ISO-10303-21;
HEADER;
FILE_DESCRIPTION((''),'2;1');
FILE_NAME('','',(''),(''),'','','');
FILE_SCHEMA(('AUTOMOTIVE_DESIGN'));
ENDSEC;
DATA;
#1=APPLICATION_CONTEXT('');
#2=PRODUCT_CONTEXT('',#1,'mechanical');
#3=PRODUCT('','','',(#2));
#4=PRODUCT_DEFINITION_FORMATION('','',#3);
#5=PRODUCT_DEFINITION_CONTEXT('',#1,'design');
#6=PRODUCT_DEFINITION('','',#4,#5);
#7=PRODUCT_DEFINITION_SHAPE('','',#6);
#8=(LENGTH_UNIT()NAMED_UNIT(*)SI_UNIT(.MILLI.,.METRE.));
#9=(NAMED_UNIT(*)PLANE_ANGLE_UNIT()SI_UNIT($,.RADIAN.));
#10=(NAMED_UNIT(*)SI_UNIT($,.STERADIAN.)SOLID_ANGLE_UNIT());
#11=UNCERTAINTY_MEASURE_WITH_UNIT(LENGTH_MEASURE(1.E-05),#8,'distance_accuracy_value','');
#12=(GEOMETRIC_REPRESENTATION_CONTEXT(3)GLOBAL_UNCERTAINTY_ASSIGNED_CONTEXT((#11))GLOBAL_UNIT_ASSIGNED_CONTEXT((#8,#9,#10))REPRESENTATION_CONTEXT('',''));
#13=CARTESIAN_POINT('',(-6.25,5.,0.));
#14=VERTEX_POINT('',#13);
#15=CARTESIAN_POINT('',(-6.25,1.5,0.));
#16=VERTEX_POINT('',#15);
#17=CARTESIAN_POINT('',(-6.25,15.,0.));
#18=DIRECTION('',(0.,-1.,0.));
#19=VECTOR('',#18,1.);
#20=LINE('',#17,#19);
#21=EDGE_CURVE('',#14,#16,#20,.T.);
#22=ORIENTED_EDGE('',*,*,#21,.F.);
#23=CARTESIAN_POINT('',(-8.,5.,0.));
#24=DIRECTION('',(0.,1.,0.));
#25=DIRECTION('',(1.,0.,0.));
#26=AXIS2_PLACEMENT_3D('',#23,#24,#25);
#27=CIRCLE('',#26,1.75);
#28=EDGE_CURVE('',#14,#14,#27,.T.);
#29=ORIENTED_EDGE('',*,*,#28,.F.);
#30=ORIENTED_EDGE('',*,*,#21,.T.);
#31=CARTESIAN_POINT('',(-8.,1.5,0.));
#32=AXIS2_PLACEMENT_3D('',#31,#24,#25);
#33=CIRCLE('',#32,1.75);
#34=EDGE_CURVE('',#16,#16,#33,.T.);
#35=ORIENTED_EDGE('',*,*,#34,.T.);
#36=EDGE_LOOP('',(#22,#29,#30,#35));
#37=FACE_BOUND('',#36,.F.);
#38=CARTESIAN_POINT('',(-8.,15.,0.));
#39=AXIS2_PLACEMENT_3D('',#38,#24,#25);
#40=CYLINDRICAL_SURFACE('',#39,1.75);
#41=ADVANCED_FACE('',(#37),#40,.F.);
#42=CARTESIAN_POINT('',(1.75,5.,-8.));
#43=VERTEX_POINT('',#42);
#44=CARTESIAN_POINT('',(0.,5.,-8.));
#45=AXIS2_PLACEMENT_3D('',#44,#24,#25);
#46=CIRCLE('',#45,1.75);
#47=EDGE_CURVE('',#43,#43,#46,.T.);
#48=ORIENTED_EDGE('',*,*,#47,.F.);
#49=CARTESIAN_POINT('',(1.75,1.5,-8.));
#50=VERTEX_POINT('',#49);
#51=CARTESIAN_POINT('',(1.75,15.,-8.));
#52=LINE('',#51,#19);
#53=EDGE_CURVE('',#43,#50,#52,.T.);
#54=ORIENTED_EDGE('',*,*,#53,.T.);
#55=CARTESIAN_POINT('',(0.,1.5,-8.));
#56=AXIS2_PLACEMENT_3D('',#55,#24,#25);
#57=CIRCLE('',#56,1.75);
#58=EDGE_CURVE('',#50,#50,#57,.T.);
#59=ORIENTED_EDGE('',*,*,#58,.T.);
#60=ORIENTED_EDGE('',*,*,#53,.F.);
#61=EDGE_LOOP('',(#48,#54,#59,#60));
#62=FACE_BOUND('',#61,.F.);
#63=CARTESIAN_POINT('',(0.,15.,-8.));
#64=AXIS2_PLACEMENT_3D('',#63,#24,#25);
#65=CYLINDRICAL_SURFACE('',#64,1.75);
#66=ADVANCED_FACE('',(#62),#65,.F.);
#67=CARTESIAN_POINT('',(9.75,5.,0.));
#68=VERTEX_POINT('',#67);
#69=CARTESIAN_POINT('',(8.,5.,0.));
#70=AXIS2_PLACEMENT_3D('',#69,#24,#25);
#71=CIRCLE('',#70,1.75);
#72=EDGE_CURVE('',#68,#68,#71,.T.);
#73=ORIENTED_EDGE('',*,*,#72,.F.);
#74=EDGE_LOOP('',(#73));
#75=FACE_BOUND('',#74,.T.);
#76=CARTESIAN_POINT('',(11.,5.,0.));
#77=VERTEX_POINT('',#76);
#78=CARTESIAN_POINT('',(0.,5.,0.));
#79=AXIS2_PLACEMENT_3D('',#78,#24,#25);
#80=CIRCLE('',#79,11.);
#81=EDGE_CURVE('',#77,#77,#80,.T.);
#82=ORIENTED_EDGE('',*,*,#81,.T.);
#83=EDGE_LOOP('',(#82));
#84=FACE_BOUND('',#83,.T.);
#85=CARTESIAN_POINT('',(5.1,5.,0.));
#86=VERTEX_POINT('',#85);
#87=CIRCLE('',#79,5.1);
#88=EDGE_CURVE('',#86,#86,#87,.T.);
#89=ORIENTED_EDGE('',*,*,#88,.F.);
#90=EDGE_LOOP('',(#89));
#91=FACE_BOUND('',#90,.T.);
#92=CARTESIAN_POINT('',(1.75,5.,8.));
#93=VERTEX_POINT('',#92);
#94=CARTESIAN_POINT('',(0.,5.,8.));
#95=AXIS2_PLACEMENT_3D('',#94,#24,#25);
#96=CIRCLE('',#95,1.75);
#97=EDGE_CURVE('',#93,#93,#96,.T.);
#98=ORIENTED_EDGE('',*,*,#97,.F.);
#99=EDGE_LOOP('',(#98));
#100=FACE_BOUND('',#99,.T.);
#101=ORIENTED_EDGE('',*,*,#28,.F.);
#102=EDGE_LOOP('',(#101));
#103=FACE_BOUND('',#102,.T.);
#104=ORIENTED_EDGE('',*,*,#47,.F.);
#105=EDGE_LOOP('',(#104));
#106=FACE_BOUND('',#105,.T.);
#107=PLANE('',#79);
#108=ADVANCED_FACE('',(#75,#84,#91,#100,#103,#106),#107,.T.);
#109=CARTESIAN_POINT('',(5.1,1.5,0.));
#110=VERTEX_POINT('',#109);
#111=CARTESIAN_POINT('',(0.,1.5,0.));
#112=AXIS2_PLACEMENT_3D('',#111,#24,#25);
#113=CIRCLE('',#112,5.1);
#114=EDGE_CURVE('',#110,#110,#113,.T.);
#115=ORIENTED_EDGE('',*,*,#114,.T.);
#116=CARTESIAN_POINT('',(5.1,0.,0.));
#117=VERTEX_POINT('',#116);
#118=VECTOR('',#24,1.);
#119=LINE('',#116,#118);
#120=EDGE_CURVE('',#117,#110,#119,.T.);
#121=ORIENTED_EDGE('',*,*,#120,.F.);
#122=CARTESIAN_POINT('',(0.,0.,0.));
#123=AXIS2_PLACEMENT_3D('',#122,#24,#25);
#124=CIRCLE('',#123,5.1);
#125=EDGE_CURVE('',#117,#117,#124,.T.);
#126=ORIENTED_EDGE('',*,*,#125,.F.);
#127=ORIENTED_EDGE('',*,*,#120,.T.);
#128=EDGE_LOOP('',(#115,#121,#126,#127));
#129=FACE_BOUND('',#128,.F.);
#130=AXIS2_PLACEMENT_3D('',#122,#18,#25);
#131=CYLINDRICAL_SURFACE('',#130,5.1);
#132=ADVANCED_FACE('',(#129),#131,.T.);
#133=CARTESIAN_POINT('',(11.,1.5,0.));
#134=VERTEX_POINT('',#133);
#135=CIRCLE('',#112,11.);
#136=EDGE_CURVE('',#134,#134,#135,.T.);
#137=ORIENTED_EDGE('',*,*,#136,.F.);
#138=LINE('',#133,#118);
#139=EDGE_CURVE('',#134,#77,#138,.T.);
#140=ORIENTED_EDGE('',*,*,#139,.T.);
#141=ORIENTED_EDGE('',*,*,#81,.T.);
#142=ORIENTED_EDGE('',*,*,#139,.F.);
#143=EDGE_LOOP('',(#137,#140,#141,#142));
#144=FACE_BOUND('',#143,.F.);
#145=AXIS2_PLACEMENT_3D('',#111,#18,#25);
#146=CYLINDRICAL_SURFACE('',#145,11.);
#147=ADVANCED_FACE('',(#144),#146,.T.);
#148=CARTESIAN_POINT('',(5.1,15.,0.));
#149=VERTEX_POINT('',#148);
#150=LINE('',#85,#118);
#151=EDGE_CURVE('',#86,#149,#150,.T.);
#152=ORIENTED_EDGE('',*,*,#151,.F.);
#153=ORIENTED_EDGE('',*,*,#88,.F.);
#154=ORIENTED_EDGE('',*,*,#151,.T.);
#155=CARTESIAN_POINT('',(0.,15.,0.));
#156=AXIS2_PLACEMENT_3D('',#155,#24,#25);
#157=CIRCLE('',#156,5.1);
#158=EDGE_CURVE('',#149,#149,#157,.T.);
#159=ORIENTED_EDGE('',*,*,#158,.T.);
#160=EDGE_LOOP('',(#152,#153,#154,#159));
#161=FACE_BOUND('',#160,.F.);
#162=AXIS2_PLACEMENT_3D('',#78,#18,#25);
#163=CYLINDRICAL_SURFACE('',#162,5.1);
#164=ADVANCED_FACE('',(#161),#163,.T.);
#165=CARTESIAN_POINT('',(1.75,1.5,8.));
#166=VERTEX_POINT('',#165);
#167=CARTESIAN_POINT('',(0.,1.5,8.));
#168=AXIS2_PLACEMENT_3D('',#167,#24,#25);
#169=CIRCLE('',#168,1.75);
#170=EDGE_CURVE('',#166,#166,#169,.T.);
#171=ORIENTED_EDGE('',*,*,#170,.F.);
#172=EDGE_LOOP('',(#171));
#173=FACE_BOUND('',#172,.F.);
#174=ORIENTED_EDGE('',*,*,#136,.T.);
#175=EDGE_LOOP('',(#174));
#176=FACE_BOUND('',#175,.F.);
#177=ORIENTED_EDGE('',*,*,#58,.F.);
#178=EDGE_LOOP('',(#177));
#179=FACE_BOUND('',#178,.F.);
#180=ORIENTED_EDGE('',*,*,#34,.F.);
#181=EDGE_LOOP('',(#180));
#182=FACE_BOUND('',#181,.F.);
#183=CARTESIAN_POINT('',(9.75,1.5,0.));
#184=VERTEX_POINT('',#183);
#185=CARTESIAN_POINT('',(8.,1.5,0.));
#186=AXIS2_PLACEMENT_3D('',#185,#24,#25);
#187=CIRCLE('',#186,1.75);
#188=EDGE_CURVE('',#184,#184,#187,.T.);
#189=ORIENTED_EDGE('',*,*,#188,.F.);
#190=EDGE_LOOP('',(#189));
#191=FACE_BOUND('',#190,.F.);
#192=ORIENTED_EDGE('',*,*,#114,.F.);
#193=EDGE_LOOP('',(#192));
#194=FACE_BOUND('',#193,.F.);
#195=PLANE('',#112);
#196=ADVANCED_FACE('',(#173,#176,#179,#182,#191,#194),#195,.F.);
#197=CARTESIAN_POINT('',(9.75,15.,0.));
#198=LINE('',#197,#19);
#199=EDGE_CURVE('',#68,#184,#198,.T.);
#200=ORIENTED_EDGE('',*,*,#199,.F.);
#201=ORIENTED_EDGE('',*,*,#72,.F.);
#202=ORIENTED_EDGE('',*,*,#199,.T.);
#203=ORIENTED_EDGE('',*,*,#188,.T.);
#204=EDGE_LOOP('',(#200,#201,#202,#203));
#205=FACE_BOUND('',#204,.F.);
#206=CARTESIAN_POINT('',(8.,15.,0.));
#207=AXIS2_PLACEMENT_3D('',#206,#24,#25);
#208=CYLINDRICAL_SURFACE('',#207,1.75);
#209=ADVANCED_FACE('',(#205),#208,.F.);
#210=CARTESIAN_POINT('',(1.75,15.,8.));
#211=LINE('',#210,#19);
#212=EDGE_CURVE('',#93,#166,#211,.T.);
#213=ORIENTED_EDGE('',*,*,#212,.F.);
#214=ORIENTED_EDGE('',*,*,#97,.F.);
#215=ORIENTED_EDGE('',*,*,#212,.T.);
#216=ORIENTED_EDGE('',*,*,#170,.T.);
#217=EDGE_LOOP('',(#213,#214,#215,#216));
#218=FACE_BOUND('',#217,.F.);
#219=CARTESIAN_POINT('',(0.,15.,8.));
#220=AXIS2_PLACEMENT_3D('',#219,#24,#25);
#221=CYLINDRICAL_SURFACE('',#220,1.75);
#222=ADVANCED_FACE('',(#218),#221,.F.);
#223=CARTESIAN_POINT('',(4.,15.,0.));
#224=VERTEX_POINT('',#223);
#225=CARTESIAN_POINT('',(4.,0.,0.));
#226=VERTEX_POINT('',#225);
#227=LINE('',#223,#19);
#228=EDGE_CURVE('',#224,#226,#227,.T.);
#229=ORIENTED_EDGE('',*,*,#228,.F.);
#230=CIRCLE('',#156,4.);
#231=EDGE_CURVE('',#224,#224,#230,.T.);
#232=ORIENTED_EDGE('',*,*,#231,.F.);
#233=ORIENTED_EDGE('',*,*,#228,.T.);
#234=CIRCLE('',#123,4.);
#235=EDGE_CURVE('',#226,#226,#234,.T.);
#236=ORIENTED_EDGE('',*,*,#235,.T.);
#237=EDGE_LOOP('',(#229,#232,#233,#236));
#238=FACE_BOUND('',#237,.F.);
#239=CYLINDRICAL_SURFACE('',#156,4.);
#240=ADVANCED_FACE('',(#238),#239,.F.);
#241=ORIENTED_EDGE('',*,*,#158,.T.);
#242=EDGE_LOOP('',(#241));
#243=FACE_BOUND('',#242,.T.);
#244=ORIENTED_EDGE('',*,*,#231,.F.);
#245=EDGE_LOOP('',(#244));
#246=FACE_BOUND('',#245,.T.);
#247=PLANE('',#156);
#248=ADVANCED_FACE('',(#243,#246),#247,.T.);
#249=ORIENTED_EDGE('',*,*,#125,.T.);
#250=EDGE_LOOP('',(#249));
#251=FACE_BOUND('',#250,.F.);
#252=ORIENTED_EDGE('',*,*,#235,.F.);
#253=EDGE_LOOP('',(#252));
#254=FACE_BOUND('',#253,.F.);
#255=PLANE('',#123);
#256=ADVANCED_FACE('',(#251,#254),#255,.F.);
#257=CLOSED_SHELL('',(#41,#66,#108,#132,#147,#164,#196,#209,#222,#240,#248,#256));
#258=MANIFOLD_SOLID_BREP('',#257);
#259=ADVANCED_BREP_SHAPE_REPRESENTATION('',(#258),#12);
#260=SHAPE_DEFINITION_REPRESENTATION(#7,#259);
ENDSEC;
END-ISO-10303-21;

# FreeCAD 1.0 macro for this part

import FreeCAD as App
import Part
import Sketcher
from FreeCAD import Vector
Q = App.Units.Quantity

doc = App.newDocument("Part")
body = doc.addObject("PartDesign::Body", "Body")

sketch1 = body.newObject("Sketcher::SketchObject", "Sketch")
sketch1.AttachmentSupport = (doc.getObject("XZ_Plane"), [""])
sketch1.MapMode = "FlatFace"
sketch1.addGeometry(Part.Circle(Vector(0, 0, 0), Vector(0, 0, 1), 5), False)
sketch1.addConstraint([
    Sketcher.Constraint("Coincident", 0, 3, -1, 1),
    Sketcher.Constraint("Diameter", 0, Q("10.2 mm")),
])
pad1 = body.newObject("PartDesign::Pad", "Pad")
pad1.Profile = sketch1
pad1.Length = 1.5
pad1.Reversed = True

sketch2 = body.newObject("Sketcher::SketchObject", "Sketch001")
sketch2.AttachmentSupport = (doc.getObject("XZ_Plane"), [""])
sketch2.MapMode = "FlatFace"
sketch2.AttachmentOffset = App.Placement(Vector(0, 0, -1.5), App.Rotation())
sketch2.addGeometry(Part.Circle(Vector(0, 0, 0), Vector(0, 0, 1), 11), False)
sketch2.addConstraint([
    Sketcher.Constraint("Coincident", 0, 3, -1, 1),
    Sketcher.Constraint("Diameter", 0, Q("22 mm")),
])
pad2 = body.newObject("PartDesign::Pad", "Pad001")
pad2.Profile = sketch2
pad2.Length = 3.5
pad2.Reversed = True

sketch3 = body.newObject("Sketcher::SketchObject", "Sketch002")
sketch3.AttachmentSupport = (doc.getObject("XZ_Plane"), [""])
sketch3.MapMode = "FlatFace"
sketch3.AttachmentOffset = App.Placement(Vector(0, 0, -5), App.Rotation())
sketch3.addGeometry(Part.Circle(Vector(0, 0, 0), Vector(0, 0, 1), 5), False)
sketch3.addConstraint([
    Sketcher.Constraint("Coincident", 0, 3, -1, 1),
    Sketcher.Constraint("Diameter", 0, Q("10.2 mm")),
])
pad3 = body.newObject("PartDesign::Pad", "Pad002")
pad3.Profile = sketch3
pad3.Length = 10
pad3.Reversed = True

sketch4 = body.newObject("Sketcher::SketchObject", "Sketch003")
sketch4.AttachmentSupport = (doc.getObject("XZ_Plane"), [""])
sketch4.MapMode = "FlatFace"
sketch4.AttachmentOffset = App.Placement(Vector(0, 0, -15), App.Rotation())
sketch4.addGeometry([
    Part.Circle(Vector(0, 0, 0), Vector(0, 0, 1), 4),
    Part.Circle(Vector(8, 0, 0), Vector(0, 0, 1), 1.8),
    Part.Circle(Vector(0, -8, 0), Vector(0, 0, 1), 1.8),
    Part.Circle(Vector(-8, 0, 0), Vector(0, 0, 1), 1.8),
    Part.Circle(Vector(0, 8, 0), Vector(0, 0, 1), 1.8),
], False)
sketch4.addConstraint([
    Sketcher.Constraint("Coincident", 0, 3, -1, 1),
    Sketcher.Constraint("Equal", 1, 2),
    Sketcher.Constraint("Equal", 2, 3),
    Sketcher.Constraint("Equal", 3, 4),
    Sketcher.Constraint("Symmetric", 1, 3, 3, 3, -1, 1),
    Sketcher.Constraint("Symmetric", 2, 3, 4, 3, -1, 1),
    Sketcher.Constraint("PointOnObject", 1, 3, -1),
    Sketcher.Constraint("PointOnObject", 2, 3, -2),
    Sketcher.Constraint("Diameter", 0, Q("8 mm")),
    Sketcher.Constraint("Diameter", 1, Q("3.5 mm")),
    Sketcher.Constraint("DistanceX", -1, 1, 1, 3, Q("8 mm")),
    Sketcher.Constraint("DistanceY", 2, 3, -1, 1, Q("8 mm")),
])
pocket1 = body.newObject("PartDesign::Pocket", "Pocket")
pocket1.Profile = sketch4
pocket1.Type = "ThroughAll"
pocket1.Reversed = True

doc.recompute()
